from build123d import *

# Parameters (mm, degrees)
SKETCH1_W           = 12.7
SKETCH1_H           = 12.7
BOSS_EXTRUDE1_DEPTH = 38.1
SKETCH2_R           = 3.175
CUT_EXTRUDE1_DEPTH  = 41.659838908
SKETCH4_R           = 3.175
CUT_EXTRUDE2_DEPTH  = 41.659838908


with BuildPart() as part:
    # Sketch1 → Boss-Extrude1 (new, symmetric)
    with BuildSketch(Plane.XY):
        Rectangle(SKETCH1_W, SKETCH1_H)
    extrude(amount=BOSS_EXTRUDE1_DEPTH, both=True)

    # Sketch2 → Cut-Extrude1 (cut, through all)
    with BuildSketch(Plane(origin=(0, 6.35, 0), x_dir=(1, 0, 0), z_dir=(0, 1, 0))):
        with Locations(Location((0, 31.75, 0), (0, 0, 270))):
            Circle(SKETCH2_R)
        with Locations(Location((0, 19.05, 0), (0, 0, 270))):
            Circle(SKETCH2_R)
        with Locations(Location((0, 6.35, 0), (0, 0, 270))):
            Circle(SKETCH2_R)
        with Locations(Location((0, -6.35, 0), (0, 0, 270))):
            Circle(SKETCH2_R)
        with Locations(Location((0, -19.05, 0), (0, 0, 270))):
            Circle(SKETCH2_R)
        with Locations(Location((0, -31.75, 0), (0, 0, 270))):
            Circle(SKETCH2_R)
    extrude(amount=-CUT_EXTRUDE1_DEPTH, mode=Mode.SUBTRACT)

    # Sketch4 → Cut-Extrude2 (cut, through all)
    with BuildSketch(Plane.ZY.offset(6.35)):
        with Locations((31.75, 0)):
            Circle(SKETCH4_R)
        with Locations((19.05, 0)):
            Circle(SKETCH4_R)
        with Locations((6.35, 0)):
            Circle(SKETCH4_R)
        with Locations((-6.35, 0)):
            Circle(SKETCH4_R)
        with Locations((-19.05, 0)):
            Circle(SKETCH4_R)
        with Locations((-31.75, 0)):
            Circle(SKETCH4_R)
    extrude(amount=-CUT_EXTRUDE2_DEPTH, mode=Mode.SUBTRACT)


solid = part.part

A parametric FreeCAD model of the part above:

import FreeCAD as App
import Part
import Sketcher

V = App.Vector
Q = App.Units.Quantity


def add_polygon(sketch, points):
    """Adds a closed chain of lines whose ends are joined by coincident constraints."""
    first, n = sketch.GeometryCount, len(points)
    for a, b in zip(points, points[1:] + points[:1]):
        sketch.addGeometry(Part.LineSegment(App.Vector(*a, 0), App.Vector(*b, 0)), False)
    for i in range(n):
        sketch.addConstraint(Sketcher.Constraint("Coincident", first + i, 2, first + (i + 1) % n, 1))

doc = App.newDocument("Part")
params = doc.addObject("Spreadsheet::Sheet", "Params")
for row, (alias, value) in enumerate([
    ("sketch1_width", "0.5 in"),
    ("pad1_length", "3 in"),
    ("sketch2_diameter", "0.25 in"),
    ("sketch3_diameter", "0.25 in"),
], start=1):
    params.set(f"A{row}", alias)
    params.set(f"B{row}", "=" + value)
    params.setAlias(f"B{row}", alias)

body = doc.addObject("PartDesign::Body", "Body")

# Sketch on XY plane
sketch1 = body.newObject("Sketcher::SketchObject", "Sketch")
sketch1.AttachmentSupport = (doc.getObject("XY_Plane"), [""])
sketch1.MapMode = "FlatFace"
add_polygon(sketch1, [(-6, 6), (-6, -6), (6, -6), (6, 6)])  # lines 0-3
sketch1.addConstraint([
    Sketcher.Constraint("Vertical", 0),
    Sketcher.Constraint("Horizontal", 1),
    Sketcher.Constraint("Vertical", 2),
    Sketcher.Constraint("Horizontal", 3),
    Sketcher.Constraint("Symmetric", 0, 2, 2, 2, -1, 1),
    Sketcher.Constraint("Equal", 3, 0),
    Sketcher.Constraint("DistanceX", 1, 1, 1, 2, Q("0.5 in")),
])
sketch1.setExpression("Constraints[10]", "Params.sketch1_width")
pad1 = body.newObject("PartDesign::Pad", "Pad")
pad1.Profile = sketch1
pad1.setExpression("Length", "Params.pad1_length")
pad1.Midplane = True

# Sketch on XZ plane
sketch2 = body.newObject("Sketcher::SketchObject", "Sketch001")
sketch2.AttachmentSupport = (doc.getObject("XZ_Plane"), [""])
sketch2.MapMode = "FlatFace"
sketch2.AttachmentOffset = App.Placement(V(0, 0, -0.25 * 25.4), App.Rotation())
sketch2.addGeometry([
    Part.Circle(V(0, -31.8, 0), V(0, 0, 1), 3.2),  # 0
    Part.Circle(V(0, -19.1, 0), V(0, 0, 1), 3.2),  # 1
    Part.Circle(V(0, -6.3, 0), V(0, 0, 1), 3.2),  # 2
    Part.Circle(V(0, 6.3, 0), V(0, 0, 1), 3.2),  # 3
    Part.Circle(V(0, 19.1, 0), V(0, 0, 1), 3.2),  # 4
    Part.Circle(V(0, 31.8, 0), V(0, 0, 1), 3.2),  # 5
], False)
sketch2.addConstraint([
    Sketcher.Constraint("Equal", 0, 1),
    Sketcher.Constraint("Equal", 1, 2),
    Sketcher.Constraint("Equal", 2, 3),
    Sketcher.Constraint("Equal", 3, 4),
    Sketcher.Constraint("Equal", 4, 5),
    Sketcher.Constraint("Symmetric", 2, 3, 3, 3, -1, 1),
    Sketcher.Constraint("Symmetric", 1, 3, 4, 3, -1, 1),
    Sketcher.Constraint("Symmetric", 0, 3, 5, 3, -1, 1),
    Sketcher.Constraint("PointOnObject", 0, 3, -2),
    Sketcher.Constraint("PointOnObject", 1, 3, -2),
    Sketcher.Constraint("PointOnObject", 2, 3, -2),
    Sketcher.Constraint("Diameter", 0, Q("0.25 in")),
    Sketcher.Constraint("DistanceY", 0, 3, 2, 3, Q("1 in")),
    Sketcher.Constraint("DistanceY", 1, 3, 3, 3, Q("1 in")),
    Sketcher.Constraint("DistanceY", 0, 3, 1, 3, Q("0.5 in")),
])
sketch2.setExpression("Constraints[11]", "Params.sketch2_diameter")
pocket1 = body.newObject("PartDesign::Pocket", "Pocket")
pocket1.Profile = sketch2
pocket1.Type = "ThroughAll"
pocket1.Reversed = True

# Sketch on YZ plane
sketch3 = body.newObject("Sketcher::SketchObject", "Sketch002")
sketch3.AttachmentSupport = (doc.getObject("YZ_Plane"), [""])
sketch3.MapMode = "FlatFace"
sketch3.AttachmentOffset = App.Placement(V(0, 0, -0.25 * 25.4), App.Rotation())
sketch3.addGeometry([
    Part.Circle(V(0, 31.8, 0), V(0, 0, 1), 3.2),  # 0
    Part.Circle(V(0, 19.1, 0), V(0, 0, 1), 3.2),  # 1
    Part.Circle(V(0, 6.3, 0), V(0, 0, 1), 3.2),  # 2
    Part.Circle(V(0, -6.3, 0), V(0, 0, 1), 3.2),  # 3
    Part.Circle(V(0, -19.1, 0), V(0, 0, 1), 3.2),  # 4
    Part.Circle(V(0, -31.8, 0), V(0, 0, 1), 3.2),  # 5
], False)
sketch3.addConstraint([
    Sketcher.Constraint("Equal", 0, 1),
    Sketcher.Constraint("Equal", 1, 2),
    Sketcher.Constraint("Equal", 2, 3),
    Sketcher.Constraint("Equal", 3, 4),
    Sketcher.Constraint("Equal", 4, 5),
    Sketcher.Constraint("Symmetric", 2, 3, 3, 3, -1, 1),
    Sketcher.Constraint("Symmetric", 1, 3, 4, 3, -1, 1),
    Sketcher.Constraint("Symmetric", 0, 3, 5, 3, -1, 1),
    Sketcher.Constraint("PointOnObject", 0, 3, -2),
    Sketcher.Constraint("PointOnObject", 1, 3, -2),
    Sketcher.Constraint("PointOnObject", 2, 3, -2),
    Sketcher.Constraint("Diameter", 0, Q("0.25 in")),
    Sketcher.Constraint("DistanceY", 2, 3, 0, 3, Q("1 in")),
    Sketcher.Constraint("DistanceY", 3, 3, 1, 3, Q("1 in")),
    Sketcher.Constraint("DistanceY", 1, 3, 0, 3, Q("0.5 in")),
])
sketch3.setExpression("Constraints[11]", "Params.sketch3_diameter")
pocket2 = body.newObject("PartDesign::Pocket", "Pocket001")
pocket2.Profile = sketch3
pocket2.Type = "ThroughAll"
pocket2.Reversed = True

doc.recompute()
